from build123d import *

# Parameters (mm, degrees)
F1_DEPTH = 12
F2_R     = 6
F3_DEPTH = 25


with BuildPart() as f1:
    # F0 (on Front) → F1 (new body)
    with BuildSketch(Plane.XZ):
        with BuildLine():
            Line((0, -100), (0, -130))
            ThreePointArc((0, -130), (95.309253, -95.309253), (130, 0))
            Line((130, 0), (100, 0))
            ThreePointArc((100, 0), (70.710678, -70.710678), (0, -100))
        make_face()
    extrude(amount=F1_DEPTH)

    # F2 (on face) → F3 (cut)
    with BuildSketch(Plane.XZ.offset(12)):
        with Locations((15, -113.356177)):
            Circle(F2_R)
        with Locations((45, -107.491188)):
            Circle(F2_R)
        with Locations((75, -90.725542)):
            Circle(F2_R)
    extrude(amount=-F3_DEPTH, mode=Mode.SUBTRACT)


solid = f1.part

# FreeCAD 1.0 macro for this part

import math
import FreeCAD as App
import Part
import Sketcher
from FreeCAD import Vector
Q = App.Units.Quantity

doc = App.newDocument("Part")
body = doc.addObject("PartDesign::Body", "Body")

# Sketch on XZ plane
sketch1 = doc.addObject("Sketcher::SketchObject", "Sketch")
body.addObject(sketch1)
sketch1.AttachmentSupport = (doc.XZ_Plane, [""])
sketch1.MapMode = "FlatFace"
sketch1.addGeometry(Part.LineSegment(Vector(0, -100, 0), Vector(0, -130, 0)), False)
sketch1.addGeometry(Part.ArcOfCircle(Part.Circle(Vector(10, -10, 0), Vector(0, 0, 1), 120), math.radians(-95), math.radians(5)), False)
sketch1.addGeometry(Part.LineSegment(Vector(130, 0, 0), Vector(100, 0, 0)), False)
sketch1.addGeometry(Part.ArcOfCircle(Part.Circle(Vector(0, 0, 0), Vector(0, 0, 1), 100), math.radians(-90), math.radians(0)), False)
sketch1.addConstraint(Sketcher.Constraint("Coincident", 0, 2, 1, 1))
sketch1.addConstraint(Sketcher.Constraint("Coincident", 1, 2, 2, 1))
sketch1.addConstraint(Sketcher.Constraint("Coincident", 2, 2, 3, 2))
sketch1.addConstraint(Sketcher.Constraint("Coincident", 3, 1, 0, 1))
sketch1.addConstraint(Sketcher.Constraint("Vertical", 0))
sketch1.addConstraint(Sketcher.Constraint("Horizontal", 2))
sketch1.addConstraint(Sketcher.Constraint("Coincident", 3, 3, -1, 1))
sketch1.addConstraint(Sketcher.Constraint("PointOnObject", 0, 2, -2))
sketch1.addConstraint(Sketcher.Constraint("PointOnObject", 1, 2, -1))
sketch1.addConstraint(Sketcher.Constraint("Equal", 2, 0))
sketch1.addConstraint(Sketcher.Constraint("Radius", 1, Q("120 mm")))
sketch1.addConstraint(Sketcher.Constraint("Radius", 3, Q("100 mm")))
sketch1.addConstraint(Sketcher.Constraint("DistanceX", 2, 2, 2, 1, Q("30 mm")))
pad1 = doc.addObject("PartDesign::Pad", "Pad")
body.addObject(pad1)
pad1.Profile = sketch1
pad1.Length = 12

# Sketch on XZ plane
sketch2 = doc.addObject("Sketcher::SketchObject", "Sketch001")
body.addObject(sketch2)
sketch2.AttachmentSupport = (doc.XZ_Plane, [""])
sketch2.MapMode = "FlatFace"
sketch2.AttachmentOffset = App.Placement(Vector(0, 0, 12), App.Rotation())
sketch2.addGeometry(Part.Circle(Vector(15, -113, 0), Vector(0, 0, 1), 6), False)
sketch2.addGeometry(Part.Circle(Vector(45, -107, 0), Vector(0, 0, 1), 6), False)
sketch2.addGeometry(Part.Circle(Vector(75, -91, 0), Vector(0, 0, 1), 6), False)
sketch2.addConstraint(Sketcher.Constraint("Equal", 0, 1))
sketch2.addConstraint(Sketcher.Constraint("Equal", 1, 2))
sketch2.addConstraint(Sketcher.Constraint("Diameter", 0, Q("12 mm")))
sketch2.addConstraint(Sketcher.Constraint("DistanceX", -1, 1, 0, 3, Q("15 mm")))
sketch2.addConstraint(Sketcher.Constraint("DistanceX", -1, 1, 1, 3, Q("45 mm")))
sketch2.addConstraint(Sketcher.Constraint("DistanceX", -1, 1, 2, 3, Q("75 mm")))
sketch2.addConstraint(Sketcher.Constraint("DistanceY", 0, 3, 1, 3, Q("5.864989 mm")))
sketch2.addConstraint(Sketcher.Constraint("DistanceY", 0, 3, -1, 1, Q("113.356177 mm")))
sketch2.addConstraint(Sketcher.Constraint("DistanceY", 2, 3, -1, 1, Q("90.725542 mm")))
pocket1 = doc.addObject("PartDesign::Pocket", "Pocket")
body.addObject(pocket1)
pocket1.Profile = sketch2
pocket1.Length = 25

doc.recompute()
